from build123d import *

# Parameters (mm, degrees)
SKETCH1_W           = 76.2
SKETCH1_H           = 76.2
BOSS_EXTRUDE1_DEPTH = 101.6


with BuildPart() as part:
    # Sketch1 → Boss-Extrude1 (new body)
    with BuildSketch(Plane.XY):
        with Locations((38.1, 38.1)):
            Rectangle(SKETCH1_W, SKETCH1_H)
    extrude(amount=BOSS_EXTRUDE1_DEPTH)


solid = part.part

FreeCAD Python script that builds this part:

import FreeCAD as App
import Part
import Sketcher

V = App.Vector
Q = App.Units.Quantity


def add_polygon(sketch, points):
    """Adds a closed chain of lines whose ends are joined by coincident constraints."""
    first, n = sketch.GeometryCount, len(points)
    for a, b in zip(points, points[1:] + points[:1]):
        sketch.addGeometry(Part.LineSegment(App.Vector(*a, 0), App.Vector(*b, 0)), False)
    for i in range(n):
        sketch.addConstraint(Sketcher.Constraint("Coincident", first + i, 2, first + (i + 1) % n, 1))

doc = App.newDocument("Part")
body = doc.addObject("PartDesign::Body", "Body")

# Sketch on XY plane
sketch1 = body.newObject("Sketcher::SketchObject", "Sketch")
sketch1.AttachmentSupport = (doc.getObject("XY_Plane"), [""])
sketch1.MapMode = "FlatFace"
add_polygon(sketch1, [(0, 76), (0, 0), (76, 0), (76, 76)])  # lines 0-3
sketch1.addConstraint([
    Sketcher.Constraint("Vertical", 0),
    Sketcher.Constraint("Horizontal", 1),
    Sketcher.Constraint("Vertical", 2),
    Sketcher.Constraint("Horizontal", 3),
    Sketcher.Constraint("Coincident", 0, 2, -1, 1),
    Sketcher.Constraint("Equal", 3, 0),
    Sketcher.Constraint("DistanceX", 1, 1, 1, 2, Q("3 in")),
])
pad1 = body.newObject("PartDesign::Pad", "Pad")
pad1.Profile = sketch1
pad1.Length = Q("4 in")

doc.recompute()
